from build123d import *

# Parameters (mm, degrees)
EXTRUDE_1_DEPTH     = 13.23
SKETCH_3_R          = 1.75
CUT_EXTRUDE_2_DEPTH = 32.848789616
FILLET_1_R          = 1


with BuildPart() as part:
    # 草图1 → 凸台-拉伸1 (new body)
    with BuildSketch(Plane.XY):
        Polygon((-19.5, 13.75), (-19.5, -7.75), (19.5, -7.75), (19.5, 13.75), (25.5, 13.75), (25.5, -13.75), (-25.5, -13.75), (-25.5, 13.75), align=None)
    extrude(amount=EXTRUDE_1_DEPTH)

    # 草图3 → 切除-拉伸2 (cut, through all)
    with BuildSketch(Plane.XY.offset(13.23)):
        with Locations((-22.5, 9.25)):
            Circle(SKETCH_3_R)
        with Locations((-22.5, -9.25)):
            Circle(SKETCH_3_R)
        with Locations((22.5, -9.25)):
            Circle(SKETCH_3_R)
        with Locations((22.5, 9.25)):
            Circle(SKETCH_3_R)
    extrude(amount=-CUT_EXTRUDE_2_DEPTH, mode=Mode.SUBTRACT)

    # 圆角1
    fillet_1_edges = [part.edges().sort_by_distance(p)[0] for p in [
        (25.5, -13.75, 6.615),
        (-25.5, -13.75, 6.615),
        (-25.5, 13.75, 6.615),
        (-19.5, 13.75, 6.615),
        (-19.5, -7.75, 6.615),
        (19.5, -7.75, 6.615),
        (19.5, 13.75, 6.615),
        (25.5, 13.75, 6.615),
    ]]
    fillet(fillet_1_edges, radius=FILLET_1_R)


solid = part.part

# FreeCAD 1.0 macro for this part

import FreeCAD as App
import Part
import Sketcher
Q = App.Units.Quantity


def edges_at(feature, points):
    """Names of the edges that pass closest to the given points."""
    edges = feature.Shape.Edges
    near = lambda p: min(range(len(edges)), key=lambda i: edges[i].distToShape(Part.Vertex(*p))[0])
    return sorted({f"Edge{near(p) + 1}" for p in points})


def add_polygon(sketch, points):
    """Adds a closed chain of lines whose ends are joined by coincident constraints."""
    first, n = sketch.GeometryCount, len(points)
    for a, b in zip(points, points[1:] + points[:1]):
        sketch.addGeometry(Part.LineSegment(App.Vector(*a, 0), App.Vector(*b, 0)), False)
    for i in range(n):
        sketch.addConstraint(Sketcher.Constraint("Coincident", first + i, 2, first + (i + 1) % n, 1))

doc = App.newDocument("Part")
body = doc.addObject("PartDesign::Body", "Body")

# Sketch on XY plane
sketch1 = body.newObject("Sketcher::SketchObject", "Sketch")
sketch1.AttachmentSupport = (doc.getObject("XY_Plane"), [""])
sketch1.MapMode = "FlatFace"
add_polygon(sketch1, [(-19.5, -7.75), (-19.5, 13.75), (-25.5, 13.75), (-25.5, -13.75), (25.5, -13.75), (25.5, 13.75), (19.5, 13.75), (19.5, -7.75)])  # lines 0-7
sketch1.addConstraint(Sketcher.Constraint("Vertical", 0))
sketch1.addConstraint(Sketcher.Constraint("Horizontal", 1))
sketch1.addConstraint(Sketcher.Constraint("Vertical", 2))
sketch1.addConstraint(Sketcher.Constraint("Horizontal", 3))
sketch1.addConstraint(Sketcher.Constraint("Vertical", 4))
sketch1.addConstraint(Sketcher.Constraint("Horizontal", 5))
sketch1.addConstraint(Sketcher.Constraint("Vertical", 6))
sketch1.addConstraint(Sketcher.Constraint("Horizontal", 7))
sketch1.addConstraint(Sketcher.Constraint("Symmetric", 1, 2, 3, 2, -1, 1))
sketch1.addConstraint(Sketcher.Constraint("Symmetric", 0, 2, 5, 2, -2))
sketch1.addConstraint(Sketcher.Constraint("DistanceX", 1, 2, 1, 1, Q("6 mm")))
sketch1.addConstraint(Sketcher.Constraint("DistanceX", 3, 1, 3, 2, Q("51 mm")))
sketch1.addConstraint(Sketcher.Constraint("DistanceY", 0, 1, 0, 2, Q("21.5 mm")))
sketch1.addConstraint(Sketcher.Constraint("DistanceY", 2, 2, 2, 1, Q("27.5 mm")))
pad1 = body.newObject("PartDesign::Pad", "Pad")
pad1.Profile = sketch1
pad1.Length = 13.23

# Sketch on XY plane
sketch2 = body.newObject("Sketcher::SketchObject", "Sketch001")
sketch2.AttachmentSupport = (doc.getObject("XY_Plane"), [""])
sketch2.MapMode = "FlatFace"
sketch2.AttachmentOffset = App.Placement(App.Vector(0, 0, 13.23), App.Rotation())
sketch2.addGeometry(Part.Circle(App.Vector(-22.5, 9.25, 0), App.Vector(0, 0, 1), 1.75), False)
sketch2.addGeometry(Part.Circle(App.Vector(-22.5, -9.25, 0), App.Vector(0, 0, 1), 1.75), False)
sketch2.addGeometry(Part.Circle(App.Vector(22.5, -9.25, 0), App.Vector(0, 0, 1), 1.75), False)
sketch2.addGeometry(Part.Circle(App.Vector(22.5, 9.25, 0), App.Vector(0, 0, 1), 1.75), False)
sketch2.addConstraint(Sketcher.Constraint("Equal", 0, 1))
sketch2.addConstraint(Sketcher.Constraint("Equal", 1, 2))
sketch2.addConstraint(Sketcher.Constraint("Equal", 2, 3))
sketch2.addConstraint(Sketcher.Constraint("Symmetric", 0, 3, 2, 3, -1, 1))
sketch2.addConstraint(Sketcher.Constraint("Symmetric", 1, 3, 3, 3, -1, 1))
sketch2.addConstraint(Sketcher.Constraint("Symmetric", 1, 3, 2, 3, -2))
sketch2.addConstraint(Sketcher.Constraint("Diameter", 0, Q("3.5 mm")))
sketch2.addConstraint(Sketcher.Constraint("DistanceX", 1, 3, 2, 3, Q("45 mm")))
sketch2.addConstraint(Sketcher.Constraint("DistanceY", 1, 3, 0, 3, Q("18.5 mm")))
pocket1 = body.newObject("PartDesign::Pocket", "Pocket")
pocket1.Profile = sketch2
pocket1.Type = "ThroughAll"
doc.recompute()

fillet = body.newObject("PartDesign::Fillet", "Fillet")
fillet.Base = (pocket1, edges_at(pocket1, [
    (25.5, -13.75, 6.615),
    (-25.5, -13.75, 6.615),
    (-25.5, 13.75, 6.615),
    (-19.5, 13.75, 6.615),
    (-19.5, -7.75, 6.615),
    (19.5, -7.75, 6.615),
    (19.5, 13.75, 6.615),
    (25.5, 13.75, 6.615),
]))
fillet.Radius = 1

doc.recompute()
